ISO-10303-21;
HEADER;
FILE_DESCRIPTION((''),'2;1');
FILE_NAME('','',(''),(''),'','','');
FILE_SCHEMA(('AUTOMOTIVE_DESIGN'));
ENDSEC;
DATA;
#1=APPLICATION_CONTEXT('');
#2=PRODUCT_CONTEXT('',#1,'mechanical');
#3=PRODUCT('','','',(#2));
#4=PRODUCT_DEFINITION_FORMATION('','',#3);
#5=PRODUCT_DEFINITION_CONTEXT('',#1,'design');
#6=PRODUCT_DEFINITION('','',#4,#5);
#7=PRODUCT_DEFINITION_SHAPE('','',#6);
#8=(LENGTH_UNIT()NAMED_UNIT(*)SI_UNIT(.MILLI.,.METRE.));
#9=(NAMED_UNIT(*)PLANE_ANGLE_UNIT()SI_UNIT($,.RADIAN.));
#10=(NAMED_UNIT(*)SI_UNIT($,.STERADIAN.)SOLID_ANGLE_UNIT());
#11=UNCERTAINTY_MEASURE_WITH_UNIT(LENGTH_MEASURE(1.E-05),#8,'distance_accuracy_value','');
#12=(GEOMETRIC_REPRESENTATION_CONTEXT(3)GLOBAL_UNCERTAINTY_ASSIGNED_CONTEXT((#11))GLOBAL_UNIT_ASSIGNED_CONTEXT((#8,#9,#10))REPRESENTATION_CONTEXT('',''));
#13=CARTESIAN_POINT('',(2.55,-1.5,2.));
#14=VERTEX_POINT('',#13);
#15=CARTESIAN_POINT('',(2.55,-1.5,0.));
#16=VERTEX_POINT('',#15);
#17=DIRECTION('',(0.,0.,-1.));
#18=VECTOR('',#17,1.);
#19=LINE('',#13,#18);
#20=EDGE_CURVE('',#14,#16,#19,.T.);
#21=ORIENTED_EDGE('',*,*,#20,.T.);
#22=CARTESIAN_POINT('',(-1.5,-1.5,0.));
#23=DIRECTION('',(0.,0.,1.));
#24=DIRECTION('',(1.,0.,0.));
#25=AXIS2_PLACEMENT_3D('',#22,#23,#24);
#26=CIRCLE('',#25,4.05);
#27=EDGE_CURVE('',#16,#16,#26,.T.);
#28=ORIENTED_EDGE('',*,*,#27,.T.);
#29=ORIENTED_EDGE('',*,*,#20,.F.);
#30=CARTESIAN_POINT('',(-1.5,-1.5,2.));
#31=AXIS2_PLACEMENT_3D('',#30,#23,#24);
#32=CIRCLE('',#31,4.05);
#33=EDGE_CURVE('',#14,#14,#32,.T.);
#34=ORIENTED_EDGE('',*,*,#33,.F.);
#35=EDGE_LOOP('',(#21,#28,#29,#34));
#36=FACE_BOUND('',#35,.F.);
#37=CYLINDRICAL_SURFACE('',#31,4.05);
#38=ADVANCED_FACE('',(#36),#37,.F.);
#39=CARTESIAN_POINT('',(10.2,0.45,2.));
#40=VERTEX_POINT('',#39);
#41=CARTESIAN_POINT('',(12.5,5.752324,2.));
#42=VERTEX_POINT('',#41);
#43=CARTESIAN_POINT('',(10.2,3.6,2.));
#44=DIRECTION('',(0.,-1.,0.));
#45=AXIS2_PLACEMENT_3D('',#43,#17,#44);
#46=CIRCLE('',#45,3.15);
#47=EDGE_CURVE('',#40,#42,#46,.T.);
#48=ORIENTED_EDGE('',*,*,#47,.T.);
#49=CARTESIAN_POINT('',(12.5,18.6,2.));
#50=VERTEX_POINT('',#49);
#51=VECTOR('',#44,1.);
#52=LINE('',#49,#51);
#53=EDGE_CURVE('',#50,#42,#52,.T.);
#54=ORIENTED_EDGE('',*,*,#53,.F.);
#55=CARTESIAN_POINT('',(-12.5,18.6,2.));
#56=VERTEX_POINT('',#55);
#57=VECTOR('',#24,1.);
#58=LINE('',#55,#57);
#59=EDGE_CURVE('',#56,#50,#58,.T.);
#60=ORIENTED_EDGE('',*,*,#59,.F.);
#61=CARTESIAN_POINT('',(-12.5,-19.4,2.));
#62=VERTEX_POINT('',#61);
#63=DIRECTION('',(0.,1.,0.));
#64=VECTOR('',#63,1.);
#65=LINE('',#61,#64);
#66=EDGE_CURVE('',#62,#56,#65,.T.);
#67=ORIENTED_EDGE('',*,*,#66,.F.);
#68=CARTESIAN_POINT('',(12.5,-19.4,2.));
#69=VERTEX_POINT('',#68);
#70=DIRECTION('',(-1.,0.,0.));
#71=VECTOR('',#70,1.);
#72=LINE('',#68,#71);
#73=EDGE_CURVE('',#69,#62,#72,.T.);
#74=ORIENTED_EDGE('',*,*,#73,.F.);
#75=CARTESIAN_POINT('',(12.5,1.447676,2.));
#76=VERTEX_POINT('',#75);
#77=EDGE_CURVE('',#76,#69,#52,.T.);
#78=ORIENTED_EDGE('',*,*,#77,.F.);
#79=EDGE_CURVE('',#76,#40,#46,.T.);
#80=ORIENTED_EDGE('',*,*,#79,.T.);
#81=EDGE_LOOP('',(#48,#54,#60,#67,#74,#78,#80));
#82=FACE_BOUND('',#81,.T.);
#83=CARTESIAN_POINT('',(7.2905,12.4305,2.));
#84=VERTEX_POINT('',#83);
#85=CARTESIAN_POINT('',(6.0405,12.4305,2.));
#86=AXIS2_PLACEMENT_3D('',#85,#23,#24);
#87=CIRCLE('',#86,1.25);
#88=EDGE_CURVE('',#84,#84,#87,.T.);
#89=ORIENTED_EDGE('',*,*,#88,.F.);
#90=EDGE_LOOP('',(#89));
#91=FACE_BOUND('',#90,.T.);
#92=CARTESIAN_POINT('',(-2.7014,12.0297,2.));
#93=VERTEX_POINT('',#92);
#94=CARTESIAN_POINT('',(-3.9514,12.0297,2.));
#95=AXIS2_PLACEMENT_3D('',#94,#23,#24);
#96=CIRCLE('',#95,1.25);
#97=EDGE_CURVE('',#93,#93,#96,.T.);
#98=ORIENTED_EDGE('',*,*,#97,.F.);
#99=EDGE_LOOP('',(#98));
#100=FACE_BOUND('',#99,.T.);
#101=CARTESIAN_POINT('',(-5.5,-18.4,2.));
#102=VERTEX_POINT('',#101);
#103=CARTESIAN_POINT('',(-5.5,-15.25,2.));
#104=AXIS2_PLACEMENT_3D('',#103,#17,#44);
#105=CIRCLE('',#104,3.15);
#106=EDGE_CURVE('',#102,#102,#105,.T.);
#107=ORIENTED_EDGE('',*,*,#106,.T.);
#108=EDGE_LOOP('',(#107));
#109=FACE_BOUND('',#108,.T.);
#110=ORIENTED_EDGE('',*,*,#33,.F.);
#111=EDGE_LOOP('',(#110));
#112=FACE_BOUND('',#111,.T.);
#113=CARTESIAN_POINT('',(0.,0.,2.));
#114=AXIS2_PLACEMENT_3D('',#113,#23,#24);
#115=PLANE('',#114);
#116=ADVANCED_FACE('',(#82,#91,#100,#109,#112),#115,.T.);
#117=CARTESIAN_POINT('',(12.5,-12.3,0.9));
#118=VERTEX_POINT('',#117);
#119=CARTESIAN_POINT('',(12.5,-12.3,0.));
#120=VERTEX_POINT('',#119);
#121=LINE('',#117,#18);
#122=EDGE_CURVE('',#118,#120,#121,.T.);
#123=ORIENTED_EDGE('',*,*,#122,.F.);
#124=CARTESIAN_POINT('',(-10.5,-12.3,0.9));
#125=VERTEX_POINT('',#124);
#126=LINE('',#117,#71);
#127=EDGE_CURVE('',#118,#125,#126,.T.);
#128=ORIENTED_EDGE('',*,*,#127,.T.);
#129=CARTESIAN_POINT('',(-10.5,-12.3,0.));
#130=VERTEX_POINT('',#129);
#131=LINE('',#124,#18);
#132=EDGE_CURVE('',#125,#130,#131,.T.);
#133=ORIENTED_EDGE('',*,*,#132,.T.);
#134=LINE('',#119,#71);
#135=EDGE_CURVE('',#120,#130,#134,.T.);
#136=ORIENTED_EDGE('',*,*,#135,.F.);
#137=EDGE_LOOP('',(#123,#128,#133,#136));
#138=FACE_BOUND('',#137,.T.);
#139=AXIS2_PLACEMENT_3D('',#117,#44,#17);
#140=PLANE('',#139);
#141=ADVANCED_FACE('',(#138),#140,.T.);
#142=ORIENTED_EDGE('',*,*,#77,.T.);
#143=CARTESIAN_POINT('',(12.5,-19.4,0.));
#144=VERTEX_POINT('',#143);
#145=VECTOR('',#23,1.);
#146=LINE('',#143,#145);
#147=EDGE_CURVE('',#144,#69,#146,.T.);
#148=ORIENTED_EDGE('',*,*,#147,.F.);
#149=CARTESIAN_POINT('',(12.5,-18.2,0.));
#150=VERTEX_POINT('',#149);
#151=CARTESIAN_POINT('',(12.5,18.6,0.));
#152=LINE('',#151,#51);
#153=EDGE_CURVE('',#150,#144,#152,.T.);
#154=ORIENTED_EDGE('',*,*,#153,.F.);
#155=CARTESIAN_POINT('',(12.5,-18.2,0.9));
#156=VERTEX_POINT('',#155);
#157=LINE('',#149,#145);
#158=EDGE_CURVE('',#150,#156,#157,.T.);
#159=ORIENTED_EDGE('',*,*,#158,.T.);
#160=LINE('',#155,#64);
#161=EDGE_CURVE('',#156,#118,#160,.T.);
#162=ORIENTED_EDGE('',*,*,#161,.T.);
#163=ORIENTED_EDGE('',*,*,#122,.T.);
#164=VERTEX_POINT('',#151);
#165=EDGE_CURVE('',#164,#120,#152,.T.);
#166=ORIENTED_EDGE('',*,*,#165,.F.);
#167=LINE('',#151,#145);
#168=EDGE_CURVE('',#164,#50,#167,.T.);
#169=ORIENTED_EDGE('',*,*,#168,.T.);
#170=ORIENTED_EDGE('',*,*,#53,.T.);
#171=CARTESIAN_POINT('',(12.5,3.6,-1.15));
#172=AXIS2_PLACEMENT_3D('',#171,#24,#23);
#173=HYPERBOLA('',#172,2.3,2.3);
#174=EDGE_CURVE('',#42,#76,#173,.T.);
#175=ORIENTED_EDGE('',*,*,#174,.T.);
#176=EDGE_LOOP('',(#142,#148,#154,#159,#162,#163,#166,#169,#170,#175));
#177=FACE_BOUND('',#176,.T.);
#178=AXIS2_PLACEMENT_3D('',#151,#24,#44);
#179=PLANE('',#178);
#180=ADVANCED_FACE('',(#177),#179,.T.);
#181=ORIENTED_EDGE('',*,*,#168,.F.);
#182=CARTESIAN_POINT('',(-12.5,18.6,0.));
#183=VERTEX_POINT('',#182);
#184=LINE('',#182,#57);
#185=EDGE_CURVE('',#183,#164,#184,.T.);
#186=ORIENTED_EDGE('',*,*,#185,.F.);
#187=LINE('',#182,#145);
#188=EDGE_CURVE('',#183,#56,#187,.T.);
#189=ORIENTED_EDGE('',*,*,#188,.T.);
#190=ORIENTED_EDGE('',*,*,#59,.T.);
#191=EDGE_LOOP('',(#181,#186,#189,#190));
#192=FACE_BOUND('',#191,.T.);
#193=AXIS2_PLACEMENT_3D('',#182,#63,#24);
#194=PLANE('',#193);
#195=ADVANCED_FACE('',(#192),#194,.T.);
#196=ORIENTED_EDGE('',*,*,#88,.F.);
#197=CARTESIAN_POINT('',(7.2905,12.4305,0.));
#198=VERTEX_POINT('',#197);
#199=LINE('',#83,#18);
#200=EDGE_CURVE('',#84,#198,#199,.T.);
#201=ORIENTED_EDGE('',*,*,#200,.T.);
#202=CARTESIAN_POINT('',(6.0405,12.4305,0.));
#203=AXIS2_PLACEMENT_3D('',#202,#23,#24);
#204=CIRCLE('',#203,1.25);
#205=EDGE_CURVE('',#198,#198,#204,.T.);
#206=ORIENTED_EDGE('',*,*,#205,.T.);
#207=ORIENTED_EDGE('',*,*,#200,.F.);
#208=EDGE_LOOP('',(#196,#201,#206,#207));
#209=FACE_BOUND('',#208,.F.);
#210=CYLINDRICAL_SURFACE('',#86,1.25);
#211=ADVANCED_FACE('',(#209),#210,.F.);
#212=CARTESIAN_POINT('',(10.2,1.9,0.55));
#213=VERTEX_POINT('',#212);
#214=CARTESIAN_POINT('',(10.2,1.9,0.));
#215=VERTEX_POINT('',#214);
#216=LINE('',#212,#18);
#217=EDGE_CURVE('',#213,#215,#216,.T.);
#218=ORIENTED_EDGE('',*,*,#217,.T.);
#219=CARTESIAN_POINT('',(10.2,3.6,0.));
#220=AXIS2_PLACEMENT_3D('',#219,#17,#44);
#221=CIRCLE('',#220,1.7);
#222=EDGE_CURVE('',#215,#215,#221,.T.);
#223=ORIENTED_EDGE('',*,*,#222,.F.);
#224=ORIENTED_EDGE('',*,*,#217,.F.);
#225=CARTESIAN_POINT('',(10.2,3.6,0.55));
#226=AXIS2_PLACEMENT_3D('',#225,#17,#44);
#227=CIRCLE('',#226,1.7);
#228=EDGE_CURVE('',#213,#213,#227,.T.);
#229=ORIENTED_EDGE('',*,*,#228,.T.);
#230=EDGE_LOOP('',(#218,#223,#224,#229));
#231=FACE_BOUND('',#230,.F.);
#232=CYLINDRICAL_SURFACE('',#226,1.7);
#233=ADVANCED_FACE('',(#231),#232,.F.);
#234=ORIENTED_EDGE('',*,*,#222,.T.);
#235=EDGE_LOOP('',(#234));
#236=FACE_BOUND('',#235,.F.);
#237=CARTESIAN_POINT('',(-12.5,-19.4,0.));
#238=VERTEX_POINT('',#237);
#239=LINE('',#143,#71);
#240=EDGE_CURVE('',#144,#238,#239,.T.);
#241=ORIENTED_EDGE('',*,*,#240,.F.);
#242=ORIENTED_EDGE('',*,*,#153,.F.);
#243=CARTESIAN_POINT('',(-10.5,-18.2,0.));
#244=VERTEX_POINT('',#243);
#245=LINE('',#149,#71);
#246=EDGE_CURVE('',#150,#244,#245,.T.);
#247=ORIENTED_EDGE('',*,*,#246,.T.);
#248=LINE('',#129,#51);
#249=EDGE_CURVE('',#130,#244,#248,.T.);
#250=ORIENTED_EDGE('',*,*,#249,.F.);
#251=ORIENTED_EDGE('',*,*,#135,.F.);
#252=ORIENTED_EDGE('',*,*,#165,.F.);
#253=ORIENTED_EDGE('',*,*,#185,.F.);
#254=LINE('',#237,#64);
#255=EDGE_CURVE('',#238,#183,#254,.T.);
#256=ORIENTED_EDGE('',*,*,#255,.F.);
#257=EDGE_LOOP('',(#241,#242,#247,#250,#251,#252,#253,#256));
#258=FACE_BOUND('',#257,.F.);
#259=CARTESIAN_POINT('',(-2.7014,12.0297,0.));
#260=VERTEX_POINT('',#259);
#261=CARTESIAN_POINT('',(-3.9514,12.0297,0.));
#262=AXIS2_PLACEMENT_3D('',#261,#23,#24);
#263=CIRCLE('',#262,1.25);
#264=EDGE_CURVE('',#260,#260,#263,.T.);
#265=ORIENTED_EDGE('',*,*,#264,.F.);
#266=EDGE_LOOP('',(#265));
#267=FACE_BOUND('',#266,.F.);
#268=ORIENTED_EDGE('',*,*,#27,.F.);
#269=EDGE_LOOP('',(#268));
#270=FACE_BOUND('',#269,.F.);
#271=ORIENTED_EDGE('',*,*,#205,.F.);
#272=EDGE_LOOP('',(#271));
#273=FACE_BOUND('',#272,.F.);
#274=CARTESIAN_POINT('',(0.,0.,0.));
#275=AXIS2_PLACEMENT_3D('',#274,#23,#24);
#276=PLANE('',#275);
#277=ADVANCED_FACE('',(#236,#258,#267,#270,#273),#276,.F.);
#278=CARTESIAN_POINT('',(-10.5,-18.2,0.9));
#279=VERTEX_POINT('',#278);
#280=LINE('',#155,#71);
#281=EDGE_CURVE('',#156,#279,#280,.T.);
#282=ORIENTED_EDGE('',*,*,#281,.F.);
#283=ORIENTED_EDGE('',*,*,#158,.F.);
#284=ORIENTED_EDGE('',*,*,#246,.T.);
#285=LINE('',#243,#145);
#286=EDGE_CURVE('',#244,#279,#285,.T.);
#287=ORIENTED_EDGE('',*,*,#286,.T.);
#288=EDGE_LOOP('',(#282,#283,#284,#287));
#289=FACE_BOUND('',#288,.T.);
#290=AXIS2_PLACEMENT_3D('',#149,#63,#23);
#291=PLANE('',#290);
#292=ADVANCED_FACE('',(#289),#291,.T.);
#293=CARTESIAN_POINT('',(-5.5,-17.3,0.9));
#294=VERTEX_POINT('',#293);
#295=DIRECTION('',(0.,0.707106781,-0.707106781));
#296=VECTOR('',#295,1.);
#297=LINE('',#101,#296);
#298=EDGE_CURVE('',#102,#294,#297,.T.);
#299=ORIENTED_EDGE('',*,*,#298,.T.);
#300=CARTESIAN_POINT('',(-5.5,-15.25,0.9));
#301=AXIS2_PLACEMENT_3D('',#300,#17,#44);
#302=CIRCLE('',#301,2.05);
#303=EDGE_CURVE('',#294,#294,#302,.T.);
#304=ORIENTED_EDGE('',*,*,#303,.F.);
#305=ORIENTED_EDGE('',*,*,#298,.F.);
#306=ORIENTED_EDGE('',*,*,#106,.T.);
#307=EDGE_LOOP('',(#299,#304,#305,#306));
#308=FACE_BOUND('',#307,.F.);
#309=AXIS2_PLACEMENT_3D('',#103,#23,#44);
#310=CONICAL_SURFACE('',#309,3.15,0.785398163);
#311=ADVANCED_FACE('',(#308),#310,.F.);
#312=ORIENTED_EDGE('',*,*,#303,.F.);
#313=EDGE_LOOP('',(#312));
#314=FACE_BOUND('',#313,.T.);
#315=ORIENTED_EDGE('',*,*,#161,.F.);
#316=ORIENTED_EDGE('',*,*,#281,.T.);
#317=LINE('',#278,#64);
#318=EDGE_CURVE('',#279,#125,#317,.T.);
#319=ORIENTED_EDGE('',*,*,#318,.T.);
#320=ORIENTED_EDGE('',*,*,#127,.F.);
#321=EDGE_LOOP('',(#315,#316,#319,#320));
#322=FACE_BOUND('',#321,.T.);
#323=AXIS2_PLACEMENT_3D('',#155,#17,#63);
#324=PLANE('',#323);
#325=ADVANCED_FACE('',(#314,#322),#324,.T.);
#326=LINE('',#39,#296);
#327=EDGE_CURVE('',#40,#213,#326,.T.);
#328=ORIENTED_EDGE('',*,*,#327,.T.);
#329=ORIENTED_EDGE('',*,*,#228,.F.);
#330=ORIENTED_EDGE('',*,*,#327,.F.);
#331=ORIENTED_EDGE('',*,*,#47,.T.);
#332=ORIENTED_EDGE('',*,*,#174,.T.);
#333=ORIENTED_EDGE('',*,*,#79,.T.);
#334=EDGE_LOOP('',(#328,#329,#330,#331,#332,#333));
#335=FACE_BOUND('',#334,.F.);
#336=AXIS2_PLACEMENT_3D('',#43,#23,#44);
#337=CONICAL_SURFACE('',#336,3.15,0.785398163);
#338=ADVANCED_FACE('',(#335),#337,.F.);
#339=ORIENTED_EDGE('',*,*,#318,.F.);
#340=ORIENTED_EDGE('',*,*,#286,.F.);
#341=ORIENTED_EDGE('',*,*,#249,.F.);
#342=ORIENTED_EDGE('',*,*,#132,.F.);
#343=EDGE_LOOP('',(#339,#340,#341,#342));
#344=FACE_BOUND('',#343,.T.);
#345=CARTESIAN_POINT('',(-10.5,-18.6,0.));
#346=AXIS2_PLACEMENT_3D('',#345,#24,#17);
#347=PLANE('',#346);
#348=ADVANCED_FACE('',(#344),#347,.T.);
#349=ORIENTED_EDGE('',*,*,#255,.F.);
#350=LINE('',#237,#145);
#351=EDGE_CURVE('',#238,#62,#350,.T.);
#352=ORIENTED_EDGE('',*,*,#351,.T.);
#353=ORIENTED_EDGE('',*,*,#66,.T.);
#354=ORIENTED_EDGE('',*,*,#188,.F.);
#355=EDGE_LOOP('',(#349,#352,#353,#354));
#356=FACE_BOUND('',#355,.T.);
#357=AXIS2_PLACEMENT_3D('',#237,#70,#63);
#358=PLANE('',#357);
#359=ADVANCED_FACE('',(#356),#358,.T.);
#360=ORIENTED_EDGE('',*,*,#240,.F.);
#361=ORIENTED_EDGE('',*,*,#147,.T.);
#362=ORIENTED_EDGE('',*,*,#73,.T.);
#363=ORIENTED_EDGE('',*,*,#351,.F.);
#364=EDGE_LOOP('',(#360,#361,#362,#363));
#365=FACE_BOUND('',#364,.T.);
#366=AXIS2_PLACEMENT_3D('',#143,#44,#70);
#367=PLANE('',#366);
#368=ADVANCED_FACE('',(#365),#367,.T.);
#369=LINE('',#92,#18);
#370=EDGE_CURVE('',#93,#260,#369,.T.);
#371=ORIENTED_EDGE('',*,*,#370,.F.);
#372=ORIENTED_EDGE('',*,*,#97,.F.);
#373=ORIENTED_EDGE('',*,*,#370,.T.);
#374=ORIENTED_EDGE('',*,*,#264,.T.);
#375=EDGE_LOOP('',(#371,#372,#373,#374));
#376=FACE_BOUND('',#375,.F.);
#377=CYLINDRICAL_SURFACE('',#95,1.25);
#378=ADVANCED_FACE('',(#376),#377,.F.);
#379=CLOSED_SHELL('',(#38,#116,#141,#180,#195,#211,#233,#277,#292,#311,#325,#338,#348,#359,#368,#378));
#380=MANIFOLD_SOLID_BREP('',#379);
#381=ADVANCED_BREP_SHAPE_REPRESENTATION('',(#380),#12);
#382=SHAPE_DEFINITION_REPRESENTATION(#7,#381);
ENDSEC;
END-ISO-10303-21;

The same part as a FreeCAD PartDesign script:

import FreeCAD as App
import Part
import Sketcher

doc = App.newDocument("Part")
params = doc.addObject("Spreadsheet::Sheet", "Params")
for row, (alias, value) in enumerate([
    ("sketch1_width", "25 mm"),
    ("sketch1_height", "38 mm"),
    ("pad1_length", "2 mm"),
    ("sketch2_diameter", "2.5 mm"),
    ("sketch2_diameter2", "8.1 mm"),
    ("sketch3_diameter", "3.4 mm"),
    ("hole_diameter", "3.4 mm"),
    ("hole_depth", "7 mm"),
    ("hole_csink_diameter", "6.3 mm"),
    ("sketch4_height", "0.9 mm"),
    ("sketch4_width", "5.9 mm"),
    ("pocket2_length", "23 mm"),
], start=1):
    params.set(f"A{row}", alias)
    params.set(f"B{row}", "=" + value)
    params.setAlias(f"B{row}", alias)

body = doc.addObject("PartDesign::Body", "Body")

sketch1 = body.newObject("Sketcher::SketchObject", "Sketch")
sketch1.AttachmentSupport = (doc.getObject("XY_Plane"), [""])
sketch1.MapMode = "FlatFace"
sketch1.addGeometry(Part.LineSegment(App.Vector(12.5, -19.4, 0), App.Vector(12.5, 18.6, 0)), False)
sketch1.addGeometry(Part.LineSegment(App.Vector(12.5, 18.6, 0), App.Vector(-12.5, 18.6, 0)), False)
sketch1.addGeometry(Part.LineSegment(App.Vector(-12.5, 18.6, 0), App.Vector(-12.5, -19.4, 0)), False)
sketch1.addGeometry(Part.LineSegment(App.Vector(-12.5, -19.4, 0), App.Vector(12.5, -19.4, 0)), False)
sketch1.addConstraint(Sketcher.Constraint("Coincident", 0, 2, 1, 1))
sketch1.addConstraint(Sketcher.Constraint("Coincident", 1, 2, 2, 1))
sketch1.addConstraint(Sketcher.Constraint("Coincident", 2, 2, 3, 1))
sketch1.addConstraint(Sketcher.Constraint("Coincident", 3, 2, 0, 1))
sketch1.addConstraint(Sketcher.Constraint("Vertical", 0))
sketch1.addConstraint(Sketcher.Constraint("Horizontal", 1))
sketch1.addConstraint(Sketcher.Constraint("Vertical", 2))
sketch1.addConstraint(Sketcher.Constraint("Horizontal", 3))
sketch1.addConstraint(Sketcher.Constraint("DistanceX", 1, 2, 1, 1, 25.0))
sketch1.addConstraint(Sketcher.Constraint("DistanceY", 0, 1, 0, 2, 38.0))
sketch1.addConstraint(Sketcher.Constraint("DistanceX", -1, 1, 0, 2, 12.5))
sketch1.addConstraint(Sketcher.Constraint("DistanceY", -1, 1, 0, 2, 18.6))
sketch1.setExpression("Constraints[8]", "Params.sketch1_width")
sketch1.setExpression("Constraints[9]", "Params.sketch1_height")
pad1 = body.newObject("PartDesign::Pad", "Pad")
pad1.Profile = sketch1
pad1.setExpression("Length", "Params.pad1_length")

sketch2 = body.newObject("Sketcher::SketchObject", "Sketch001")
sketch2.AttachmentSupport = (doc.getObject("XY_Plane"), [""])
sketch2.MapMode = "FlatFace"
sketch2.AttachmentOffset = App.Placement(App.Vector(0, 0, 2), App.Rotation())
sketch2.addGeometry(Part.Circle(App.Vector(-3.9514, 12.0297, 0), App.Vector(0, 0, 1), 1.25), False)
sketch2.addGeometry(Part.Circle(App.Vector(6.0405, 12.4305, 0), App.Vector(0, 0, 1), 1.25), False)
sketch2.addGeometry(Part.Circle(App.Vector(-1.5, -1.5, 0), App.Vector(0, 0, 1), 4.05), False)
sketch2.addConstraint(Sketcher.Constraint("Equal", 0, 1))
sketch2.addConstraint(Sketcher.Constraint("Diameter", 0, 2.5))
sketch2.addConstraint(Sketcher.Constraint("Diameter", 2, 8.1))
sketch2.addConstraint(Sketcher.Constraint("DistanceX", 2, 3, -1, 1, 1.5))
sketch2.addConstraint(Sketcher.Constraint("DistanceY", 2, 3, -1, 1, 1.5))
sketch2.addConstraint(Sketcher.Constraint("DistanceX", 0, 3, 1, 3, 9.992))
sketch2.addConstraint(Sketcher.Constraint("DistanceX", 0, 3, -1, 1, 3.9514))
sketch2.addConstraint(Sketcher.Constraint("DistanceY", -1, 1, 0, 3, 12.0297))
sketch2.addConstraint(Sketcher.Constraint("DistanceY", -1, 1, 1, 3, 12.4305))
sketch2.setExpression("Constraints[1]", "Params.sketch2_diameter")
sketch2.setExpression("Constraints[2]", "Params.sketch2_diameter2")
pocket1 = body.newObject("PartDesign::Pocket", "Pocket")
pocket1.Profile = sketch2
pocket1.Type = "ThroughAll"

sketch3 = body.newObject("Sketcher::SketchObject", "Sketch002")
sketch3.AttachmentSupport = (doc.getObject("XY_Plane"), [""])
sketch3.MapMode = "FlatFace"
sketch3.AttachmentOffset = App.Placement(App.Vector(0, 0, 2), App.Rotation())
sketch3.addGeometry(Part.Circle(App.Vector(10.2, 3.6, 0), App.Vector(0, 0, 1), 1.7), False)
sketch3.addGeometry(Part.Circle(App.Vector(-5.5, -15.25, 0), App.Vector(0, 0, 1), 1.7), False)
sketch3.addConstraint(Sketcher.Constraint("Equal", 0, 1))
sketch3.addConstraint(Sketcher.Constraint("Diameter", 0, 3.4))
sketch3.addConstraint(Sketcher.Constraint("DistanceX", -1, 1, 0, 3, 10.2))
sketch3.addConstraint(Sketcher.Constraint("DistanceY", -1, 1, 0, 3, 3.6))
sketch3.addConstraint(Sketcher.Constraint("DistanceX", 1, 3, -1, 1, 5.5))
sketch3.addConstraint(Sketcher.Constraint("DistanceY", 1, 3, -1, 1, 15.25))
sketch3.setExpression("Constraints[1]", "Params.sketch3_diameter")
doc.recompute()
hole = body.newObject("PartDesign::Hole", "Hole")
hole.Profile = sketch3
hole.ThreadType = "None"
hole.setExpression("Diameter", "Params.hole_diameter")
hole.DepthType = "Dimension"
hole.setExpression("Depth", "Params.hole_depth")
hole.DrillPoint = "Angled"
hole.DrillPointAngle = 118
hole.HoleCutType = "Countersink"
hole.setExpression("HoleCutDiameter", "Params.hole_csink_diameter")
hole.HoleCutCountersinkAngle = 90

sketch4 = body.newObject("Sketcher::SketchObject", "Sketch003")
sketch4.AttachmentSupport = (doc.getObject("YZ_Plane"), [""])
sketch4.MapMode = "FlatFace"
sketch4.AttachmentOffset = App.Placement(App.Vector(0, 0, 12.5), App.Rotation())
sketch4.addGeometry(Part.LineSegment(App.Vector(-18.2, 0.9, 0), App.Vector(-18.2, 0, 0)), False)
sketch4.addGeometry(Part.LineSegment(App.Vector(-18.2, 0, 0), App.Vector(-12.3, 0, 0)), False)
sketch4.addGeometry(Part.LineSegment(App.Vector(-12.3, 0, 0), App.Vector(-12.3, 0.9, 0)), False)
sketch4.addGeometry(Part.LineSegment(App.Vector(-12.3, 0.9, 0), App.Vector(-18.2, 0.9, 0)), False)
sketch4.addConstraint(Sketcher.Constraint("Coincident", 0, 2, 1, 1))
sketch4.addConstraint(Sketcher.Constraint("Coincident", 1, 2, 2, 1))
sketch4.addConstraint(Sketcher.Constraint("Coincident", 2, 2, 3, 1))
sketch4.addConstraint(Sketcher.Constraint("Coincident", 3, 2, 0, 1))
sketch4.addConstraint(Sketcher.Constraint("Vertical", 0))
sketch4.addConstraint(Sketcher.Constraint("Horizontal", 1))
sketch4.addConstraint(Sketcher.Constraint("Vertical", 2))
sketch4.addConstraint(Sketcher.Constraint("Horizontal", 3))
sketch4.addConstraint(Sketcher.Constraint("PointOnObject", 0, 2, -1))
sketch4.addConstraint(Sketcher.Constraint("DistanceY", 0, 2, 0, 1, 0.9))
sketch4.addConstraint(Sketcher.Constraint("DistanceX", 1, 1, 1, 2, 5.9))
sketch4.addConstraint(Sketcher.Constraint("DistanceX", 0, 2, -1, 1, 18.2))
sketch4.setExpression("Constraints[9]", "Params.sketch4_height")
sketch4.setExpression("Constraints[10]", "Params.sketch4_width")
pocket2 = body.newObject("PartDesign::Pocket", "Pocket001")
pocket2.Profile = sketch4
pocket2.setExpression("Length", "Params.pocket2_length")

doc.recompute()
